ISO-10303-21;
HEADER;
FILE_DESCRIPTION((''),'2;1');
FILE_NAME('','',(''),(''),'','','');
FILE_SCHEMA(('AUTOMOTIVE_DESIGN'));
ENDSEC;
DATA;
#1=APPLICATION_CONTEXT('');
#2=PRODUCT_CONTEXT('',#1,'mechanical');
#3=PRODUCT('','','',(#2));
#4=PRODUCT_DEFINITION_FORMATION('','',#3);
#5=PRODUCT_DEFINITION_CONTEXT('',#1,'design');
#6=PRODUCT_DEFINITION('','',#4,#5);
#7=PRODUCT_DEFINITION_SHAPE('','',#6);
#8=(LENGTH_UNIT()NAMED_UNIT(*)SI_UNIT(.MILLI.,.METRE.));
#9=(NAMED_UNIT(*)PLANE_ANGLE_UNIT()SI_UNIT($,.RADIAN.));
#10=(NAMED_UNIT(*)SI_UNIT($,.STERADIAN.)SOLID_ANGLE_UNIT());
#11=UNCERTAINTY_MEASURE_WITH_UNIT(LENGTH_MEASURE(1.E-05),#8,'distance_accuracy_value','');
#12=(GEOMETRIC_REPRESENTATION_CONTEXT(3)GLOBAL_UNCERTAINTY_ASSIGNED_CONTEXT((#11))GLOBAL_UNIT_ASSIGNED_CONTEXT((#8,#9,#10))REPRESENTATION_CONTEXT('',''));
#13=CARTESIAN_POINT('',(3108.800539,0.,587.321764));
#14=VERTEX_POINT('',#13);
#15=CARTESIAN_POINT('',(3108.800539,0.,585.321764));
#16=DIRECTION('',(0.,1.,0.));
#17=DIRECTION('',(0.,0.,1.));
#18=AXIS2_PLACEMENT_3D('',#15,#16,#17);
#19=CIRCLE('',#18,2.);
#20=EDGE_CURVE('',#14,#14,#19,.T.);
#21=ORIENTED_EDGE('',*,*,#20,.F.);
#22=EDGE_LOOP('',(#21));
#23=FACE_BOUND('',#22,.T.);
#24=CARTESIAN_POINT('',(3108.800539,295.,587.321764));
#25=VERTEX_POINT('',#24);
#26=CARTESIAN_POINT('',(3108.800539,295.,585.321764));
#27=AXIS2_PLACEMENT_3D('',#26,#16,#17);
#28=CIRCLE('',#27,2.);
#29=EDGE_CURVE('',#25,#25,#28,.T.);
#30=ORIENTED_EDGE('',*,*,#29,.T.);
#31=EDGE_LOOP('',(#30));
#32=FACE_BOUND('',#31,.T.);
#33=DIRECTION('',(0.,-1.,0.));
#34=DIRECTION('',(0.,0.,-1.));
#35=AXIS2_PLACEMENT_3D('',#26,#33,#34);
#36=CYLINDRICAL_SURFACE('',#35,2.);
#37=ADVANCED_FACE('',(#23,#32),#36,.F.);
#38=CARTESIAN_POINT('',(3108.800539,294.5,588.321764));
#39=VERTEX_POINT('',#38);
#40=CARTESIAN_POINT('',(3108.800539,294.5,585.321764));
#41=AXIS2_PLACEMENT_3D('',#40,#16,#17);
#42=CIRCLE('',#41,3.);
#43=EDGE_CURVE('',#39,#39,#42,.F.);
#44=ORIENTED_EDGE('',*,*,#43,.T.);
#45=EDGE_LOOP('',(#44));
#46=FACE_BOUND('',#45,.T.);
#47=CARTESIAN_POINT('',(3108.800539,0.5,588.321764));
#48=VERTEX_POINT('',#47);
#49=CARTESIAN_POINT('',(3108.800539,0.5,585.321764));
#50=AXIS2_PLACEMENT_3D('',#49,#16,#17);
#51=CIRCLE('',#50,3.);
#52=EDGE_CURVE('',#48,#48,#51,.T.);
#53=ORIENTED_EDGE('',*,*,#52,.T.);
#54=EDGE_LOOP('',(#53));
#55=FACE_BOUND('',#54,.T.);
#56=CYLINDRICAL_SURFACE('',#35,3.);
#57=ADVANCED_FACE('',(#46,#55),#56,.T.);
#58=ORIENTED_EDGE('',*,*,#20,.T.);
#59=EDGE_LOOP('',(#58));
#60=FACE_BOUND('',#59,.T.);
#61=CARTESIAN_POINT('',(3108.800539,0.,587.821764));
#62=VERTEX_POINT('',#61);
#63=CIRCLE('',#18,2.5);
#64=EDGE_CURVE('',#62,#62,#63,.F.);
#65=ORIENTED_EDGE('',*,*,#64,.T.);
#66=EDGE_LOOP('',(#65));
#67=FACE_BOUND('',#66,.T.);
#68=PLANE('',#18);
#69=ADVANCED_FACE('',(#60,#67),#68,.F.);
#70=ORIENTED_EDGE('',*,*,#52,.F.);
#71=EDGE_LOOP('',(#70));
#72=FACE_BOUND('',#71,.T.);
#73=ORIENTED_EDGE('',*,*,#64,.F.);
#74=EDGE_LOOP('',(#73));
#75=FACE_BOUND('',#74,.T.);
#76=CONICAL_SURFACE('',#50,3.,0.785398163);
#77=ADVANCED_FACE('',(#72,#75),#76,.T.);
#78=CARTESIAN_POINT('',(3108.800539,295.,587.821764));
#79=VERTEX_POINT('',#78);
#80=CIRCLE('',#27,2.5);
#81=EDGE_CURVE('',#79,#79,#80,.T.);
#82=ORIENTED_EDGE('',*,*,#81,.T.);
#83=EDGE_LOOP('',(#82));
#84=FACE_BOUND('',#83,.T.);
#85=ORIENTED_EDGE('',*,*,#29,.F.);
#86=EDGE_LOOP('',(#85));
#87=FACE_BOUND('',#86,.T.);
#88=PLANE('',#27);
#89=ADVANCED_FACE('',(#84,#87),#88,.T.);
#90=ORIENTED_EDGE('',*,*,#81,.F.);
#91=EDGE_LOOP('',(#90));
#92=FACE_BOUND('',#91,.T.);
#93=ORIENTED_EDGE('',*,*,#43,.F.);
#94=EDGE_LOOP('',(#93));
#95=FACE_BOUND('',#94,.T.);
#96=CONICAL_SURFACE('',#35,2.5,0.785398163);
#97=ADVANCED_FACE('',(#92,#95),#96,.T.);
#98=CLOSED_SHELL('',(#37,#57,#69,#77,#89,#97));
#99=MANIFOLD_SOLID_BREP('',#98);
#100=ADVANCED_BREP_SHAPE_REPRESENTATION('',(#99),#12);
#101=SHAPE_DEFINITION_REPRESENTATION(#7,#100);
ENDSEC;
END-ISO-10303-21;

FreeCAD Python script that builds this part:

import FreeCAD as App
import Part
import Sketcher
Q = App.Units.Quantity


def edges_at(feature, points):
    """Names of the edges that pass closest to the given points."""
    edges = feature.Shape.Edges
    near = lambda p: min(range(len(edges)), key=lambda i: edges[i].distToShape(Part.Vertex(*p))[0])
    return sorted({f"Edge{near(p) + 1}" for p in points})

doc = App.newDocument("Part")
params = doc.addObject("Spreadsheet::Sheet", "Params")
for row, (alias, value) in enumerate([
    ("sketch1_diameter", "6 mm"),
    ("sketch1_diameter2", "4 mm"),
    ("pad1_length", "295 mm"),
    ("chamfer_size", "0.5 mm"),
], start=1):
    params.set(f"A{row}", alias)
    params.set(f"B{row}", "=" + value)
    params.setAlias(f"B{row}", alias)

body = doc.addObject("PartDesign::Body", "Body")

# Sketch on XZ plane
sketch1 = body.newObject("Sketcher::SketchObject", "Sketch")
sketch1.AttachmentSupport = (doc.getObject("XZ_Plane"), [""])
sketch1.MapMode = "FlatFace"
sketch1.addGeometry([
    Part.Circle(App.Vector(3108.800539, 585.321764, 0), App.Vector(0, 0, 1), 3),
    Part.Circle(App.Vector(3108.800539, 585.321764, 0), App.Vector(0, 0, 1), 2),
], False)
sketch1.addConstraint([
    Sketcher.Constraint("Coincident", 1, 3, 0, 3),
    Sketcher.Constraint("Diameter", 0, Q("6 mm")),
    Sketcher.Constraint("Diameter", 1, Q("4 mm")),
    Sketcher.Constraint("DistanceX", -1, 1, 0, 3, Q("3108.800539 mm")),
    Sketcher.Constraint("DistanceY", -1, 1, 0, 3, Q("585.321764 mm")),
])
sketch1.setExpression("Constraints[1]", "Params.sketch1_diameter")
sketch1.setExpression("Constraints[2]", "Params.sketch1_diameter2")
pad1 = body.newObject("PartDesign::Pad", "Pad")
pad1.Profile = sketch1
pad1.setExpression("Length", "Params.pad1_length")
pad1.Reversed = True
doc.recompute()

chamfer = body.newObject("PartDesign::Chamfer", "Chamfer")
chamfer.Base = (pad1, edges_at(pad1, [(3105.801, 0, 585.322), (3105.801, 295, 585.322)]))
chamfer.setExpression("Size", "Params.chamfer_size")

doc.recompute()
